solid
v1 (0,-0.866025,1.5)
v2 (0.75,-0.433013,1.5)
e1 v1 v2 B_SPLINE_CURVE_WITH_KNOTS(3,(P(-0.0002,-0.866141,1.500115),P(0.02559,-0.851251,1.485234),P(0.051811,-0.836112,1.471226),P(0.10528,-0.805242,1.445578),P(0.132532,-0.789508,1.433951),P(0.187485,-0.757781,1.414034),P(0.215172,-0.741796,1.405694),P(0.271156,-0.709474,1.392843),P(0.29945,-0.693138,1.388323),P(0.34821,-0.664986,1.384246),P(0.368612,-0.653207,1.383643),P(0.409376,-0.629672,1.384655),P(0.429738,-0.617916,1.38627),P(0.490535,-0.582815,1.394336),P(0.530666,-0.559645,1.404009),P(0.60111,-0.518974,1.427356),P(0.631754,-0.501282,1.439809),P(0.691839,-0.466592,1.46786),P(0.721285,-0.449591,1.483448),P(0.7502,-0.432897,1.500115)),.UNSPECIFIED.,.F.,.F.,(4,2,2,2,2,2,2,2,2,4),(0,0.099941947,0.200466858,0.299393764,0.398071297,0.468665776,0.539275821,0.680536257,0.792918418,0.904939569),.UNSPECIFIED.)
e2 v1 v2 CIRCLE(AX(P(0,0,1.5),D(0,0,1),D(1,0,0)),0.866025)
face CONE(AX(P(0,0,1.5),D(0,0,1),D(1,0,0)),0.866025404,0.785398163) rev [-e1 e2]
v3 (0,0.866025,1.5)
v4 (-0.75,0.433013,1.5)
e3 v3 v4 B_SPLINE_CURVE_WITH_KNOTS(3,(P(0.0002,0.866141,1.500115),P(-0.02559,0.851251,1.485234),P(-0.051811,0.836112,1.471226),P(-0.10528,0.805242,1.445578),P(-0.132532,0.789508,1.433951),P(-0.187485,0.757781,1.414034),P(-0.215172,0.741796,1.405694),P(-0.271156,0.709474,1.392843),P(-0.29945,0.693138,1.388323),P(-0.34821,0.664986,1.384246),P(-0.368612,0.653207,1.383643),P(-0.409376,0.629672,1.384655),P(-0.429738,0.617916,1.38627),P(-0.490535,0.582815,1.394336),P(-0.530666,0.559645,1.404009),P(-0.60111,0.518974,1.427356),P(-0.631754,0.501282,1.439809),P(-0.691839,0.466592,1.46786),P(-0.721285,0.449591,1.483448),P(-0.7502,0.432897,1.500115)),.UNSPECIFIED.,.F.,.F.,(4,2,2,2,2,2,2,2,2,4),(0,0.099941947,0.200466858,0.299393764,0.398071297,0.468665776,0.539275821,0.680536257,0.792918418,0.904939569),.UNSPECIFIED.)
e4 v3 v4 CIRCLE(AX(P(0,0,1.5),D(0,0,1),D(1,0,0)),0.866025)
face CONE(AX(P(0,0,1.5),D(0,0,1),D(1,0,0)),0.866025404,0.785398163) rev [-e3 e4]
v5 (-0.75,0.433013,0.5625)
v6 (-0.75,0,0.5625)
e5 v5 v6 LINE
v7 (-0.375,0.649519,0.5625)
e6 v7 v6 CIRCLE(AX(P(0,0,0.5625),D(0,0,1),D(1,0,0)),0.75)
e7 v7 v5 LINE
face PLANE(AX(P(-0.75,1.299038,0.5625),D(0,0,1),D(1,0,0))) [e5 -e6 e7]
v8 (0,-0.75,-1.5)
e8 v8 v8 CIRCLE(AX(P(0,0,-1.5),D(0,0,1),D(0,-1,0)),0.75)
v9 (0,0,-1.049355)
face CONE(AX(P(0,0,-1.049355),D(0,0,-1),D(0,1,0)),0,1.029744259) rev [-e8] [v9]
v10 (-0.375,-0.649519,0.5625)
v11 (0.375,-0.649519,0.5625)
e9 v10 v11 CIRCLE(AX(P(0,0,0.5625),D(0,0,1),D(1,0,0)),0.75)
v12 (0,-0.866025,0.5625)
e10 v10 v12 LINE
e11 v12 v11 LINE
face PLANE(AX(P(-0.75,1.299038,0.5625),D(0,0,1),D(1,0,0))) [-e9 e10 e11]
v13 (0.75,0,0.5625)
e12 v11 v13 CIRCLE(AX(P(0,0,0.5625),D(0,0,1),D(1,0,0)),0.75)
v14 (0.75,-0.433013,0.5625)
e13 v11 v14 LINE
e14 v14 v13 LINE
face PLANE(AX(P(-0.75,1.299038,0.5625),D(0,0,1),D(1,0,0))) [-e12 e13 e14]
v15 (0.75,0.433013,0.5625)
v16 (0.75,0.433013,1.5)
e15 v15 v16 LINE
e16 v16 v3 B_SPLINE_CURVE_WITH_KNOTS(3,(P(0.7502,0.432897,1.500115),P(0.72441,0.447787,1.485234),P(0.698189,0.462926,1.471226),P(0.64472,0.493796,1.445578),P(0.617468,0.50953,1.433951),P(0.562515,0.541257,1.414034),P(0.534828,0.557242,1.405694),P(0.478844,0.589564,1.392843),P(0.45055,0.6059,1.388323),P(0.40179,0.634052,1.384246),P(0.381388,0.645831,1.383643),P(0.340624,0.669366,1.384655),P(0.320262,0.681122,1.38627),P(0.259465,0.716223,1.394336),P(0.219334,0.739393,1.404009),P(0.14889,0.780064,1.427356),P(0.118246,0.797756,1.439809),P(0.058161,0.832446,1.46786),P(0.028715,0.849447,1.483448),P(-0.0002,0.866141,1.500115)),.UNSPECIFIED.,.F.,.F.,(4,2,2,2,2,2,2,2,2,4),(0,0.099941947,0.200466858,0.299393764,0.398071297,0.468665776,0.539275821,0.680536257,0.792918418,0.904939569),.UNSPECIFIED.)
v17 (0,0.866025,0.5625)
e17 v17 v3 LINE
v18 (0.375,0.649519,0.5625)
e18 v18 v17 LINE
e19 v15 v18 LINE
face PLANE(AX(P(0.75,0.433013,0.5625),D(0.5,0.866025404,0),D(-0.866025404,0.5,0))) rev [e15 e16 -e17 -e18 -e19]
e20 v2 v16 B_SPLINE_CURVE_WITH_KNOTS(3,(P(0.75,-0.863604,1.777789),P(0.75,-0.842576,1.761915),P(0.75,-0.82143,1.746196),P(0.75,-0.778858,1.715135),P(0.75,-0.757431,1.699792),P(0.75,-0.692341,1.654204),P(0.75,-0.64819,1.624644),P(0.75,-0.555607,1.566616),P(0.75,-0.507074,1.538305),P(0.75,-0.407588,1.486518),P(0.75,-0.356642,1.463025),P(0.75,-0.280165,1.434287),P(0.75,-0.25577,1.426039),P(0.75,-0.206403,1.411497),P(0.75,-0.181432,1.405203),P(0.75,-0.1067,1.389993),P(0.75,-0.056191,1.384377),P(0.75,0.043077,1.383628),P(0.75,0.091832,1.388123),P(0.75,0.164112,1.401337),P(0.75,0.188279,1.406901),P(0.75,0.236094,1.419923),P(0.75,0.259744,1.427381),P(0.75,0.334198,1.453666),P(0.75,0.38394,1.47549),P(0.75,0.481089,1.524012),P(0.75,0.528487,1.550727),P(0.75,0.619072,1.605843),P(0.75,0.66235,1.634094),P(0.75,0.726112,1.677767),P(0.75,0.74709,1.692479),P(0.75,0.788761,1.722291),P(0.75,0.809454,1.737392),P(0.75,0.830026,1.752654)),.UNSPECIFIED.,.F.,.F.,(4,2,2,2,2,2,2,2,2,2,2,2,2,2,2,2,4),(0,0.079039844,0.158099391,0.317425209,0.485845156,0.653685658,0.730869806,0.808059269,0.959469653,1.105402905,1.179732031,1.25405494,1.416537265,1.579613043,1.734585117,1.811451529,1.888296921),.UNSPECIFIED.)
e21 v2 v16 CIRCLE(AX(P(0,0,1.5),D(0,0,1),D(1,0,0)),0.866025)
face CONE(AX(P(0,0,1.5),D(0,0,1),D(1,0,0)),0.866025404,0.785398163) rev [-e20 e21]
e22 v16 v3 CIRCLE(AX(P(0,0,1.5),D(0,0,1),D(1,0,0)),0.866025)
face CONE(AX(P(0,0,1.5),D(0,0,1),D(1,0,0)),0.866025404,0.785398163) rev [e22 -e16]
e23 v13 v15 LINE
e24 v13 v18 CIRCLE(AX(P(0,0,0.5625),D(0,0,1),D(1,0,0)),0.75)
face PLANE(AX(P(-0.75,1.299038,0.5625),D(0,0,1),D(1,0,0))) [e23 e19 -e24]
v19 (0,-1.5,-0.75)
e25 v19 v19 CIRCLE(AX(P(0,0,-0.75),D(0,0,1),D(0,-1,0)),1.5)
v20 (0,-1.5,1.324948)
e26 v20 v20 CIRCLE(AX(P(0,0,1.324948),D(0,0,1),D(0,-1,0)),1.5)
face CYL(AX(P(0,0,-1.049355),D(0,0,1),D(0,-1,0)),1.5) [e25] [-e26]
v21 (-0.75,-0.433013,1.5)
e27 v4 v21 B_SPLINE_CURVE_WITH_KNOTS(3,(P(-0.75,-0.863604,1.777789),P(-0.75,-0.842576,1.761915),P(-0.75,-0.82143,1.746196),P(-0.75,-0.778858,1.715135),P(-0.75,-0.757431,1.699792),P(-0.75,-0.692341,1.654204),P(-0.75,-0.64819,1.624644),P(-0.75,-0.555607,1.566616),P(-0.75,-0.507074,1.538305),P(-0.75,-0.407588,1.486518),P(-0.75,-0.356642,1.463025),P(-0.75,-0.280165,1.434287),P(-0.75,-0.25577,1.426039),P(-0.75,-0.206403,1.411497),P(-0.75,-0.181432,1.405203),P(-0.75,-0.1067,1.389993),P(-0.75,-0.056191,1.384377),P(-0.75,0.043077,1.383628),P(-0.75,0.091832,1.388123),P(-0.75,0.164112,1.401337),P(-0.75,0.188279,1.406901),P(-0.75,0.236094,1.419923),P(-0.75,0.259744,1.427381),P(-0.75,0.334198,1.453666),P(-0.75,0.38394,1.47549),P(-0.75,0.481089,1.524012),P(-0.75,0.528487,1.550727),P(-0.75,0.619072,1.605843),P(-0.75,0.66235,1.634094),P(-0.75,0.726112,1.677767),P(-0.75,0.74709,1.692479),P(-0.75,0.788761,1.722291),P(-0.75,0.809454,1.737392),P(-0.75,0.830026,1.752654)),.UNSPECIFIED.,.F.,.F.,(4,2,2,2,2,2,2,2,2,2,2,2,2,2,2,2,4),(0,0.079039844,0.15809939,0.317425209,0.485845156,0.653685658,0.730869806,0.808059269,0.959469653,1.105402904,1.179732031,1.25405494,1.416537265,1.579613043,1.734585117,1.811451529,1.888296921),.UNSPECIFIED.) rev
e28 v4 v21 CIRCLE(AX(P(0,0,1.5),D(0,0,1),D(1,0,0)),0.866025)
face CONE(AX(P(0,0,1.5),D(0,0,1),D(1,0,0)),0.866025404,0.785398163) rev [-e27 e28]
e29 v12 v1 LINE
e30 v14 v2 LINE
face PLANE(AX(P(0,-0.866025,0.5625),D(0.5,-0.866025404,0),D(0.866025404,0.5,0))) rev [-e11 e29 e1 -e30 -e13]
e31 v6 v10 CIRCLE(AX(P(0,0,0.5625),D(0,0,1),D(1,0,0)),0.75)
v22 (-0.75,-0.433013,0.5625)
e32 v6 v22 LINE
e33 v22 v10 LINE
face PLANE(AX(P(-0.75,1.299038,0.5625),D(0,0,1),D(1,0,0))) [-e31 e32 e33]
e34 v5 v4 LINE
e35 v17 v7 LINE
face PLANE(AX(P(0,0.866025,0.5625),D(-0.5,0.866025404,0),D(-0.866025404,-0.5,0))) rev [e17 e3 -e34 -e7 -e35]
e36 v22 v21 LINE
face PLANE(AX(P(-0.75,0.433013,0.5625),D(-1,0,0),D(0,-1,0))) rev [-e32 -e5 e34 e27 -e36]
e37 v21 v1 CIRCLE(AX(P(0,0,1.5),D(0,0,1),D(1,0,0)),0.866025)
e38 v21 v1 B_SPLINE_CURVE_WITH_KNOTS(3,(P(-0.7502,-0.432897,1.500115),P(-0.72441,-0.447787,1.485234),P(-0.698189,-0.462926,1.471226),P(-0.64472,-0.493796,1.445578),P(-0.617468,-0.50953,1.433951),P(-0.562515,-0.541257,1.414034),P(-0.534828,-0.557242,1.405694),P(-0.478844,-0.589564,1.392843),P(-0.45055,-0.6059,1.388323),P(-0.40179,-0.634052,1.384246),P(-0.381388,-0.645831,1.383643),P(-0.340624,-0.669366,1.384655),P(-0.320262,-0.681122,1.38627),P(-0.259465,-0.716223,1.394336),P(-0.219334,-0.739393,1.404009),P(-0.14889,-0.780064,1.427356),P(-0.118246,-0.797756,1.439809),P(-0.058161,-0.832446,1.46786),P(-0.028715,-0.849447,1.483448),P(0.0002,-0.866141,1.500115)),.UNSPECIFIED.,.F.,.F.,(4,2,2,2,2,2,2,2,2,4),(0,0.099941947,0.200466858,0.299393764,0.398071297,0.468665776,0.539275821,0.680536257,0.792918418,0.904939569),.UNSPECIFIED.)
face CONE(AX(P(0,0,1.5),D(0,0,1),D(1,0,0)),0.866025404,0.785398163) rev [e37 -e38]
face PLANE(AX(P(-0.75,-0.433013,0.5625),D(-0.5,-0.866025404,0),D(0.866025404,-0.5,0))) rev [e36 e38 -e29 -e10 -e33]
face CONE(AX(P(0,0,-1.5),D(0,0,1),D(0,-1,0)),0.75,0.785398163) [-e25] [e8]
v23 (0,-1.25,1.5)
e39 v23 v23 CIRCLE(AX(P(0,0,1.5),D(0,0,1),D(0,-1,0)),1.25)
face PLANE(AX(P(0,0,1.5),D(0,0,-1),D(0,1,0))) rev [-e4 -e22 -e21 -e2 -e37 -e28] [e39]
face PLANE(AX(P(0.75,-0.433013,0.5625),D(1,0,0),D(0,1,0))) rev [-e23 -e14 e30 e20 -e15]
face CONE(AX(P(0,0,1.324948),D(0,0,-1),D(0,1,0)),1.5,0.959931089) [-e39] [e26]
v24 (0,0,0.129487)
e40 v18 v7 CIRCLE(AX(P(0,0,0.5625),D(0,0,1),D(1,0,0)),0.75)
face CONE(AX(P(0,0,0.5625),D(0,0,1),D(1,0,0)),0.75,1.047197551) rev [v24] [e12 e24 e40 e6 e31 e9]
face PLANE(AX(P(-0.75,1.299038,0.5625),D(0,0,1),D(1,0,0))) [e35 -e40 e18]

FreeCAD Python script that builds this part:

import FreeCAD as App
import Part
import Sketcher
Q = App.Units.Quantity


def add_polygon(sketch, points):
    """Adds a closed chain of lines whose ends are joined by coincident constraints."""
    first, n = sketch.GeometryCount, len(points)
    for a, b in zip(points, points[1:] + points[:1]):
        sketch.addGeometry(Part.LineSegment(App.Vector(*a, 0), App.Vector(*b, 0)), False)
    for i in range(n):
        sketch.addConstraint(Sketcher.Constraint("Coincident", first + i, 2, first + (i + 1) % n, 1))

doc = App.newDocument("Part")
body = doc.addObject("PartDesign::Body", "Body")

sketch1 = body.newObject("Sketcher::SketchObject", "Sketch")
sketch1.AttachmentSupport = (doc.getObject("YZ_Plane"), [""])
sketch1.MapMode = "FlatFace"
add_polygon(sketch1, [(1.25, 1.5), (0, 1.5), (0, -1.05), (0.75, -1.5), (1.5, -0.75), (1.5, 1.32)])
sketch1.addConstraint([
    Sketcher.Constraint("Horizontal", 0),
    Sketcher.Constraint("Vertical", 1),
    Sketcher.Constraint("Vertical", 4),
    Sketcher.Constraint("PointOnObject", 0, 2, -2),
    Sketcher.Constraint("Angle", 2, Q("-31 deg")),
    Sketcher.Constraint("Angle", 3, Q("45 deg")),
    Sketcher.Constraint("Angle", 5, Q("145 deg")),
    Sketcher.Constraint("DistanceY", 2, 2, 0, 2, 3.0),
    Sketcher.Constraint("DistanceX", 0, 2, 0, 1, 1.25),
    Sketcher.Constraint("DistanceY", -1, 1, 0, 2, 1.5),
    Sketcher.Constraint("DistanceX", -1, 1, 3, 2, 1.5),
    Sketcher.Constraint("DistanceX", 2, 2, 5, 2, 0.5),
])
revolution = body.newObject("PartDesign::Revolution", "Revolution")
revolution.Profile = sketch1
revolution.ReferenceAxis = (sketch1, ["V_Axis"])
revolution.Angle = 360

sketch2 = body.newObject("Sketcher::SketchObject", "Sketch001")
sketch2.AttachmentSupport = (doc.getObject("XY_Plane"), [""])
sketch2.MapMode = "FlatFace"
sketch2.AttachmentOffset = App.Placement(App.Vector(0, 0, 1.5), App.Rotation())
add_polygon(sketch2, [(0, 0.9), (-0.8, 0.4), (-0.8, -0.4), (0, -0.9), (0.8, -0.4), (0.8, 0.4)])
sketch2.addConstraint([
    Sketcher.Constraint("Vertical", 1),
    Sketcher.Constraint("Vertical", 4),
    Sketcher.Constraint("Symmetric", 0, 2, 3, 2, -1, 1),
    Sketcher.Constraint("Symmetric", 2, 2, 5, 2, -1, 1),
    Sketcher.Constraint("PointOnObject", 2, 2, -2),
    Sketcher.Constraint("Parallel", 2, 5),
    Sketcher.Constraint("Horizontal", 1, 2, 3, 2),
    Sketcher.Constraint("Angle", 0, Q("-150 deg")),
    Sketcher.Constraint("DistanceX", 1, 2, 3, 2, 1.5),
    Sketcher.Constraint("DistanceY", 1, 2, 1, 1, 0.866025),
])
pocket1 = body.newObject("PartDesign::Pocket", "Pocket")
pocket1.Profile = sketch2
pocket1.Length = 0.9375

sketch3 = body.newObject("Sketcher::SketchObject", "Sketch002")
sketch3.AttachmentSupport = (doc.getObject("YZ_Plane"), [""])
sketch3.MapMode = "FlatFace"
add_polygon(sketch3, [(0, 1.5), (-0.9, 1.5), (0, 0.6)])
sketch3.addConstraint([
    Sketcher.Constraint("Horizontal", 0),
    Sketcher.Constraint("Vertical", 2),
    Sketcher.Constraint("PointOnObject", 1, 2, -2),
    Sketcher.Constraint("Equal", 0, 2),
    Sketcher.Constraint("DistanceY", -1, 1, 0, 2, 1.5),
    Sketcher.Constraint("DistanceX", 0, 2, 0, 1, 0.866025),
])
groove = body.newObject("PartDesign::Groove", "Groove")
groove.Profile = sketch3
groove.ReferenceAxis = (sketch3, ["V_Axis"])
groove.Angle = 360

sketch4 = body.newObject("Sketcher::SketchObject", "Sketch003")
sketch4.AttachmentSupport = (doc.getObject("YZ_Plane"), [""])
sketch4.MapMode = "FlatFace"
add_polygon(sketch4, [(0, 0.56), (-0.75, 0.56), (0, 0.13)])
sketch4.addConstraint([
    Sketcher.Constraint("Horizontal", 0),
    Sketcher.Constraint("Vertical", 2),
    Sketcher.Constraint("PointOnObject", 1, 2, -2),
    Sketcher.Constraint("Angle", 1, Q("-30 deg")),
    Sketcher.Constraint("DistanceX", 0, 2, 0, 1, 0.75),
    Sketcher.Constraint("DistanceY", -1, 1, 0, 2, 0.5625),
])
groove2 = body.newObject("PartDesign::Groove", "Groove001")
groove2.Profile = sketch4
groove2.ReferenceAxis = (sketch4, ["V_Axis"])
groove2.Angle = 360

doc.recompute()
